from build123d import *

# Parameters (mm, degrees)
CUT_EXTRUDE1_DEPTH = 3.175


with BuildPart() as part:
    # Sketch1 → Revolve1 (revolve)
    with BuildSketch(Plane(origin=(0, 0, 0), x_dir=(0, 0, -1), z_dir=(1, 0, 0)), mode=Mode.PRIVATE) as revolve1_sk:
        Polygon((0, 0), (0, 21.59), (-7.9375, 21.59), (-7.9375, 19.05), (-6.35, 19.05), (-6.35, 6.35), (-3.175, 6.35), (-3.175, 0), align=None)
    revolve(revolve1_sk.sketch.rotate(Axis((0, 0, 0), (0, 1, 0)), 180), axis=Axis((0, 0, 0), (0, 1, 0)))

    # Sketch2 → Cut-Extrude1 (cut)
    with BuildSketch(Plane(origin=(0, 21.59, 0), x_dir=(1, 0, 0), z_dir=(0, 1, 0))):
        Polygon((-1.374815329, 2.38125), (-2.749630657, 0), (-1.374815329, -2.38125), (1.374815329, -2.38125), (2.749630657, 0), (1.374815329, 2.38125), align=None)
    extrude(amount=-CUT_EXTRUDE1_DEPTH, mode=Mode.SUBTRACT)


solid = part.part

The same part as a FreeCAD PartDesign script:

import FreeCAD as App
import Part
import Sketcher
Q = App.Units.Quantity

doc = App.newDocument("Part")
body = doc.addObject("PartDesign::Body", "Body")

sketch1 = doc.addObject("Sketcher::SketchObject", "Sketch")
body.addObject(sketch1)
sketch1.AttachmentSupport = (doc.YZ_Plane, [""])
sketch1.MapMode = "FlatFace"
sketch1.addGeometry([
    Part.LineSegment(App.Vector(0, 0, 0), App.Vector(21.59, 0, 0)),
    Part.LineSegment(App.Vector(21.59, 0, 0), App.Vector(21.59, 7.9375, 0)),
    Part.LineSegment(App.Vector(21.59, 7.9375, 0), App.Vector(19.05, 7.9375, 0)),
    Part.LineSegment(App.Vector(19.05, 7.9375, 0), App.Vector(19.05, 6.35, 0)),
    Part.LineSegment(App.Vector(19.05, 6.35, 0), App.Vector(6.35, 6.35, 0)),
    Part.LineSegment(App.Vector(6.35, 6.35, 0), App.Vector(6.35, 3.175, 0)),
    Part.LineSegment(App.Vector(6.35, 3.175, 0), App.Vector(0, 3.175, 0)),
    Part.LineSegment(App.Vector(0, 3.175, 0), App.Vector(0, 0, 0)),
], False)
sketch1.addConstraint([
    Sketcher.Constraint("Coincident", 0, 2, 1, 1),
    Sketcher.Constraint("Coincident", 1, 2, 2, 1),
    Sketcher.Constraint("Coincident", 2, 2, 3, 1),
    Sketcher.Constraint("Coincident", 3, 2, 4, 1),
    Sketcher.Constraint("Coincident", 4, 2, 5, 1),
    Sketcher.Constraint("Coincident", 5, 2, 6, 1),
    Sketcher.Constraint("Coincident", 6, 2, 7, 1),
    Sketcher.Constraint("Coincident", 7, 2, 0, 1),
    Sketcher.Constraint("Horizontal", 0),
    Sketcher.Constraint("Vertical", 1),
    Sketcher.Constraint("Horizontal", 2),
    Sketcher.Constraint("Vertical", 3),
    Sketcher.Constraint("Horizontal", 4),
    Sketcher.Constraint("Vertical", 5),
    Sketcher.Constraint("Horizontal", 6),
    Sketcher.Constraint("Vertical", 7),
    Sketcher.Constraint("Coincident", 7, 2, -1, 1),
    Sketcher.Constraint("Equal", 5, 7),
    Sketcher.Constraint("DistanceX", 2, 2, 2, 1, Q("0.1 in")),
    Sketcher.Constraint("DistanceX", 4, 2, 4, 1, Q("0.5 in")),
    Sketcher.Constraint("DistanceX", 0, 1, 0, 2, Q("0.85 in")),
    Sketcher.Constraint("DistanceY", 1, 1, 1, 2, Q("0.3125 in")),
    Sketcher.Constraint("DistanceY", 3, 2, 3, 1, Q("0.0625 in")),
])
revolution = doc.addObject("PartDesign::Revolution", "Revolution")
body.addObject(revolution)
revolution.Profile = sketch1
revolution.ReferenceAxis = (sketch1, ["H_Axis"])
revolution.Angle = 360

sketch2 = doc.addObject("Sketcher::SketchObject", "Sketch001")
body.addObject(sketch2)
sketch2.AttachmentSupport = (doc.XZ_Plane, [""])
sketch2.MapMode = "FlatFace"
sketch2.AttachmentOffset = App.Placement(App.Vector(0, 0, -0.85 * 25.4), App.Rotation())
sketch2.addGeometry([
    Part.LineSegment(App.Vector(-1.374815, -2.38125, 0), App.Vector(-2.749631, 0, 0)),
    Part.LineSegment(App.Vector(-2.749631, 0, 0), App.Vector(-1.374815, 2.38125, 0)),
    Part.LineSegment(App.Vector(-1.374815, 2.38125, 0), App.Vector(1.374815, 2.38125, 0)),
    Part.LineSegment(App.Vector(1.374815, 2.38125, 0), App.Vector(2.749631, 0, 0)),
    Part.LineSegment(App.Vector(2.749631, 0, 0), App.Vector(1.374815, -2.38125, 0)),
    Part.LineSegment(App.Vector(1.374815, -2.38125, 0), App.Vector(-1.374815, -2.38125, 0)),
], False)
sketch2.addConstraint([
    Sketcher.Constraint("Coincident", 0, 2, 1, 1),
    Sketcher.Constraint("Coincident", 1, 2, 2, 1),
    Sketcher.Constraint("Coincident", 2, 2, 3, 1),
    Sketcher.Constraint("Coincident", 3, 2, 4, 1),
    Sketcher.Constraint("Coincident", 4, 2, 5, 1),
    Sketcher.Constraint("Coincident", 5, 2, 0, 1),
    Sketcher.Constraint("Horizontal", 2),
    Sketcher.Constraint("Horizontal", 5),
    Sketcher.Constraint("Symmetric", 0, 2, 3, 2, -1, 1),
    Sketcher.Constraint("Symmetric", 1, 2, 4, 2, -1, 1),
    Sketcher.Constraint("PointOnObject", 0, 2, -1),
    Sketcher.Constraint("Parallel", 0, 3),
    Sketcher.Constraint("Vertical", 2, 2, 4, 2),
    Sketcher.Constraint("Angle", 0, Q("120 deg")),
    Sketcher.Constraint("DistanceY", -1, 1, 1, 2, Q("0.09375 in")),
    Sketcher.Constraint("DistanceX", 2, 1, 2, 2, Q("2.749631 mm")),
])
pocket1 = doc.addObject("PartDesign::Pocket", "Pocket")
body.addObject(pocket1)
pocket1.Profile = sketch2
pocket1.Length = Q("0.125 in")
pocket1.Reversed = True

doc.recompute()
